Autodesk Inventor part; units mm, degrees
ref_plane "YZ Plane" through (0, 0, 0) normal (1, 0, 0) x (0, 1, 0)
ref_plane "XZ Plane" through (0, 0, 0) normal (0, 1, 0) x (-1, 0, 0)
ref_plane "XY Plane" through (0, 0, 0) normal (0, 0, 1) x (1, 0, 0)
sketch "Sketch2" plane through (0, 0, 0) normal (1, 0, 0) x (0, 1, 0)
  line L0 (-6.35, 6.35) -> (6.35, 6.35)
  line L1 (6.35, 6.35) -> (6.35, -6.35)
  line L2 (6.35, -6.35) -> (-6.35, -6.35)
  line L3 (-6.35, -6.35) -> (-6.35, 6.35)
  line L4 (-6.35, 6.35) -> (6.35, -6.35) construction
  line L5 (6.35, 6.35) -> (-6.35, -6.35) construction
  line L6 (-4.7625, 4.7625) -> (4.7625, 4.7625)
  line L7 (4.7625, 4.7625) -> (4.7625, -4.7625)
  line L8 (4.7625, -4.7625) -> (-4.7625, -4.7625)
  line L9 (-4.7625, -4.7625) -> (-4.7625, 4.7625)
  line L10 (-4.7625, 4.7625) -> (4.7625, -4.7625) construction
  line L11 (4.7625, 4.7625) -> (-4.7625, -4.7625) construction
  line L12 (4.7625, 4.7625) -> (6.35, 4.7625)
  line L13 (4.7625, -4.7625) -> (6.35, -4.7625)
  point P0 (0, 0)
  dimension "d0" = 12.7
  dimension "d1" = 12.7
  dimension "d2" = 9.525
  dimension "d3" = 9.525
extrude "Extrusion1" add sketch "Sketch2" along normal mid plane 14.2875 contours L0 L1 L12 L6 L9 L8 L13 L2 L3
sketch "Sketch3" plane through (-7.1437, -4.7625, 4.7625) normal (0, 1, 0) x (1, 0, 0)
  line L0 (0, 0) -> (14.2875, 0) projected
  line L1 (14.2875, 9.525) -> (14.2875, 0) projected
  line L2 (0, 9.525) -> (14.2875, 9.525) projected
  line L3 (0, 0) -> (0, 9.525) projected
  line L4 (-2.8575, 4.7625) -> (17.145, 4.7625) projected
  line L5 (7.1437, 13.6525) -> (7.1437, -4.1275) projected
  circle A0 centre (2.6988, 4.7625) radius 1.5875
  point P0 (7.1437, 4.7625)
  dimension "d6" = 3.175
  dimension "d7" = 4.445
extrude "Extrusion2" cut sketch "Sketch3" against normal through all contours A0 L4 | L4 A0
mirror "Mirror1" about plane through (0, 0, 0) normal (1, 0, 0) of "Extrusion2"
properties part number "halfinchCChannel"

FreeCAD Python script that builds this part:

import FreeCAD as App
import Part
import Sketcher

V = App.Vector
Q = App.Units.Quantity

doc = App.newDocument("Part")
body = doc.addObject("PartDesign::Body", "Body")

# Sketch on YZ plane
sketch1 = body.newObject("Sketcher::SketchObject", "Sketch")
sketch1.AttachmentSupport = (doc.getObject("YZ_Plane"), [""])
sketch1.MapMode = "FlatFace"
sketch1.addGeometry([
    Part.LineSegment(V(6.35, 6.35, 0), V(-6.35, 6.35, 0)),  # 0
    Part.LineSegment(V(-6.35, 6.35, 0), V(-6.35, -6.35, 0)),  # 1
    Part.LineSegment(V(-6.35, -6.35, 0), V(6.35, -6.35, 0)),  # 2
    Part.LineSegment(V(6.35, -6.35, 0), V(6.35, -4.7625, 0)),  # 3
    Part.LineSegment(V(6.35, -4.7625, 0), V(-4.7625, -4.7625, 0)),  # 4
    Part.LineSegment(V(-4.7625, -4.7625, 0), V(-4.7625, 4.7625, 0)),  # 5
    Part.LineSegment(V(-4.7625, 4.7625, 0), V(6.35, 4.7625, 0)),  # 6
    Part.LineSegment(V(6.35, 4.7625, 0), V(6.35, 6.35, 0)),  # 7
], False)
sketch1.addConstraint([
    Sketcher.Constraint("Coincident", 0, 2, 1, 1),
    Sketcher.Constraint("Coincident", 1, 2, 2, 1),
    Sketcher.Constraint("Coincident", 2, 2, 3, 1),
    Sketcher.Constraint("Coincident", 3, 2, 4, 1),
    Sketcher.Constraint("Coincident", 4, 2, 5, 1),
    Sketcher.Constraint("Coincident", 5, 2, 6, 1),
    Sketcher.Constraint("Coincident", 6, 2, 7, 1),
    Sketcher.Constraint("Coincident", 7, 2, 0, 1),
    Sketcher.Constraint("Horizontal", 0),
    Sketcher.Constraint("Vertical", 1),
    Sketcher.Constraint("Horizontal", 2),
    Sketcher.Constraint("Vertical", 3),
    Sketcher.Constraint("Horizontal", 4),
    Sketcher.Constraint("Vertical", 5),
    Sketcher.Constraint("Horizontal", 6),
    Sketcher.Constraint("Vertical", 7),
    Sketcher.Constraint("Symmetric", 0, 2, 2, 2, -1, 1),
    Sketcher.Constraint("Symmetric", 3, 2, 6, 2, -1),
    Sketcher.Constraint("Equal", 2, 1),
    Sketcher.Constraint("DistanceX", 0, 2, 0, 1, Q("0.5 in")),
    Sketcher.Constraint("DistanceY", 5, 1, 5, 2, Q("0.375 in")),
    Sketcher.Constraint("DistanceX", 4, 2, 4, 1, Q("0.4375 in")),
])
pad1 = body.newObject("PartDesign::Pad", "Pad")
pad1.Profile = sketch1
pad1.Length = Q("0.5625 in")
pad1.Midplane = True

# Sketch on XZ plane
sketch2 = body.newObject("Sketcher::SketchObject", "Sketch001")
sketch2.AttachmentSupport = (doc.getObject("XZ_Plane"), [""])
sketch2.MapMode = "FlatFace"
sketch2.AttachmentOffset = App.Placement(V(0, 0, 0.1875 * 25.4), App.Rotation())
sketch2.addGeometry(Part.Circle(V(-4.4449, 0, 0), V(0, 0, 1), 1.5875), False)
sketch2.addConstraint([
    Sketcher.Constraint("PointOnObject", 0, 3, -1),
    Sketcher.Constraint("Diameter", 0, Q("0.125 in")),
    Sketcher.Constraint("DistanceX", 0, 3, -1, 1, Q("0.175 in")),
])
pocket1 = body.newObject("PartDesign::Pocket", "Pocket")
pocket1.Profile = sketch2
pocket1.Type = "ThroughAll"
pocket1.Reversed = True
doc.recompute()

mirrored = body.newObject("PartDesign::Mirrored", "Mirrored")
mirrored.Originals = [pocket1]
mirrored.MirrorPlane = (doc.getObject("YZ_Plane"), [""])
body.Tip = mirrored

doc.recompute()
